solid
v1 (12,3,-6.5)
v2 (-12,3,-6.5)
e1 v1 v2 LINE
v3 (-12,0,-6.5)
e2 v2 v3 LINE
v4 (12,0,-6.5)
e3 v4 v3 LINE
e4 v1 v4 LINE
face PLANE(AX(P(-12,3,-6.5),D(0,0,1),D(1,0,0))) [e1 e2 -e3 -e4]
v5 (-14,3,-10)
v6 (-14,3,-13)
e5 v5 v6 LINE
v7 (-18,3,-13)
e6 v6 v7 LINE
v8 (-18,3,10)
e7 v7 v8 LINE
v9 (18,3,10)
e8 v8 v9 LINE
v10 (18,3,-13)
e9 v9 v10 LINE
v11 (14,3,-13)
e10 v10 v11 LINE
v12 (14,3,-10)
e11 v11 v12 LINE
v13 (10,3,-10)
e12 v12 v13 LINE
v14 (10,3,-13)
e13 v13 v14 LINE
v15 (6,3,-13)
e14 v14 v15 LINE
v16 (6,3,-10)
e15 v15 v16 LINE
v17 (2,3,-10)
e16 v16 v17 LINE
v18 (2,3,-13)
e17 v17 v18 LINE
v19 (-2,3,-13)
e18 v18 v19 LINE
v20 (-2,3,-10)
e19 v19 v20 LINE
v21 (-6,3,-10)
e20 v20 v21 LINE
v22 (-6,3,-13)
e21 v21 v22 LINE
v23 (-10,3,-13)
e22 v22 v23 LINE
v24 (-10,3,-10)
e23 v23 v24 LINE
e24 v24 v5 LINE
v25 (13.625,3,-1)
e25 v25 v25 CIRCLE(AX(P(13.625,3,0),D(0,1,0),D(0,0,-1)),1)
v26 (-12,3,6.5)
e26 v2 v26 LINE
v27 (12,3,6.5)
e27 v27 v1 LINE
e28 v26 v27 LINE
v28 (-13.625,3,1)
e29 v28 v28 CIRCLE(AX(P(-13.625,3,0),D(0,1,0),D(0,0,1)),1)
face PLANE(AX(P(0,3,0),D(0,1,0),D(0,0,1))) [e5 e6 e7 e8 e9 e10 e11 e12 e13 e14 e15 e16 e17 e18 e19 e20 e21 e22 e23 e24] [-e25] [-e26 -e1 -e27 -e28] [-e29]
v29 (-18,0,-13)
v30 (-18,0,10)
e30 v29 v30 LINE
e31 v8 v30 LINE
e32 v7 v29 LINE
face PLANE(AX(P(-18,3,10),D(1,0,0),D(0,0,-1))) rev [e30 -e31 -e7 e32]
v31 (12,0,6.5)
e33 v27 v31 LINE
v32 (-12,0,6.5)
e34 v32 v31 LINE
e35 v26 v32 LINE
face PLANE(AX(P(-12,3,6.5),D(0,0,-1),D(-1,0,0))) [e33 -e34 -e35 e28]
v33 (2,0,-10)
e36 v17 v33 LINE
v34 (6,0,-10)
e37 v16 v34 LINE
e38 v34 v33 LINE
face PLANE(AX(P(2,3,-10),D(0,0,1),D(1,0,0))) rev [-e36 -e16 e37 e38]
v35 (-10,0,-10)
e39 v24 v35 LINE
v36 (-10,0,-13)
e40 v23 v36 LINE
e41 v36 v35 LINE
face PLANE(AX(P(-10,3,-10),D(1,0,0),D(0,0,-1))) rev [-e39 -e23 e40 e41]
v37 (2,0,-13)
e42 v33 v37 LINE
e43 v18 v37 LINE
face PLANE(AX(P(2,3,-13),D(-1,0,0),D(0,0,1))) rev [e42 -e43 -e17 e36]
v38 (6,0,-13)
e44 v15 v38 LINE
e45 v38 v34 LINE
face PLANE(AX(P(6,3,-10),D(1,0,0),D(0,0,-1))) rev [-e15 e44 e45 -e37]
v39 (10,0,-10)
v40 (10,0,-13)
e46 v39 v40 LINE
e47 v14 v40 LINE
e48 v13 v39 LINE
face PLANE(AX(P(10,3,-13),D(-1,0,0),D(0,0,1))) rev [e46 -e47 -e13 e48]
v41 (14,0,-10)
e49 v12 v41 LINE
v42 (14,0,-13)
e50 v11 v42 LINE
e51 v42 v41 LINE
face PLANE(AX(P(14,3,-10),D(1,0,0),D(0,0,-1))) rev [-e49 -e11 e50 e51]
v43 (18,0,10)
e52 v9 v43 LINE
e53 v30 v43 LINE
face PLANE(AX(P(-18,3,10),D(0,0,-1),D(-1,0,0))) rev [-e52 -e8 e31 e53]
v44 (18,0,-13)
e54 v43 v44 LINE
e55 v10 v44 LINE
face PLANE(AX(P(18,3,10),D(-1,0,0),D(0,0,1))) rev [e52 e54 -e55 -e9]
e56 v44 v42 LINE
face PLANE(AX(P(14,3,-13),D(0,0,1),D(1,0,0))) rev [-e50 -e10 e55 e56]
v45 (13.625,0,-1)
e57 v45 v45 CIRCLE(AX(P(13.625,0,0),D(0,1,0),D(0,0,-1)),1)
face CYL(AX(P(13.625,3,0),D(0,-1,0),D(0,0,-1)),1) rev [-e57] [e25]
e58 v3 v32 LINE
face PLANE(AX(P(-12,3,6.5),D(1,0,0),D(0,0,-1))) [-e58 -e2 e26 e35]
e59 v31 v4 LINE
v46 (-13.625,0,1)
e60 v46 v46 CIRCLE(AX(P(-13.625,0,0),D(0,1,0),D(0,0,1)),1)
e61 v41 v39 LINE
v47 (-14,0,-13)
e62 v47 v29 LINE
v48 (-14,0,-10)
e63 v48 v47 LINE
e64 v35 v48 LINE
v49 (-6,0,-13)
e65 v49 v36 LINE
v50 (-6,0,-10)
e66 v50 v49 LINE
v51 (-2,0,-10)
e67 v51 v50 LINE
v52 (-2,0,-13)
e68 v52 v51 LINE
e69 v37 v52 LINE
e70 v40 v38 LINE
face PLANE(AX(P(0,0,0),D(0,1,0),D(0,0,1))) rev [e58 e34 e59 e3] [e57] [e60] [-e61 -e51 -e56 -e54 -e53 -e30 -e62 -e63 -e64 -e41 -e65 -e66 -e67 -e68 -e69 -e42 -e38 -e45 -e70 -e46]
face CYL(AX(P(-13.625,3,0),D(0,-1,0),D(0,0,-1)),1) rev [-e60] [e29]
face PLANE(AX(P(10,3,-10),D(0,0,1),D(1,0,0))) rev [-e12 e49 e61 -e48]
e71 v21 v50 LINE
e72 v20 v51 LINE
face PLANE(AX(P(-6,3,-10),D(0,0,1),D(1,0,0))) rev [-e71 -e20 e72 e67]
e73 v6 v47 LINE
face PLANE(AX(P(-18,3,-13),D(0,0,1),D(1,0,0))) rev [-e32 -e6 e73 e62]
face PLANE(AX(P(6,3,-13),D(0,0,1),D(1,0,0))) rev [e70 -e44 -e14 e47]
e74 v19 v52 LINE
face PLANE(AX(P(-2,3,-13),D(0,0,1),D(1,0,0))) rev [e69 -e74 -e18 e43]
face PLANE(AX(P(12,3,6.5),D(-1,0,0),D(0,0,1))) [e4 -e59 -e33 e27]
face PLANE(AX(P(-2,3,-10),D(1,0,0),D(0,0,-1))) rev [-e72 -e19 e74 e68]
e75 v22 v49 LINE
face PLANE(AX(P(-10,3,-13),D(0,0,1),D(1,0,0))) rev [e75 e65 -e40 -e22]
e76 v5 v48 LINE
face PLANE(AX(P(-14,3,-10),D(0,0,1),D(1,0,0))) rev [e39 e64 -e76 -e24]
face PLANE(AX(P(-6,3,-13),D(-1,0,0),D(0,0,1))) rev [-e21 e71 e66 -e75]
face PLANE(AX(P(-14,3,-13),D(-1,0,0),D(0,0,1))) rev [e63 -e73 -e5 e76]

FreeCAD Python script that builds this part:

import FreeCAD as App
import Part
import Sketcher
Q = App.Units.Quantity


def add_polygon(sketch, points):
    """Adds a closed chain of lines whose ends are joined by coincident constraints."""
    first, n = sketch.GeometryCount, len(points)
    for a, b in zip(points, points[1:] + points[:1]):
        sketch.addGeometry(Part.LineSegment(App.Vector(*a, 0), App.Vector(*b, 0)), False)
    for i in range(n):
        sketch.addConstraint(Sketcher.Constraint("Coincident", first + i, 2, first + (i + 1) % n, 1))

doc = App.newDocument("Part")
body = doc.addObject("PartDesign::Body", "Body")

sketch1 = body.newObject("Sketcher::SketchObject", "Sketch")
sketch1.AttachmentSupport = (doc.getObject("XZ_Plane"), [""])
sketch1.MapMode = "FlatFace"
add_polygon(sketch1, [(-18, 10), (18, 10), (18, -13), (14, -13), (14, -10), (10, -10), (10, -13), (6, -13), (6, -10), (2, -10), (2, -13), (-2, -13), (-2, -10), (-6, -10), (-6, -13), (-10, -13), (-10, -10), (-14, -10), (-14, -13), (-18, -13)])
sketch1.addGeometry(Part.Circle(App.Vector(-13.625, 0, 0), App.Vector(0, 0, 1), 1), False)
add_polygon(sketch1, [(12, 6.5), (-12, 6.5), (-12, -6.5), (12, -6.5)])
sketch1.addGeometry(Part.Circle(App.Vector(13.625, 0, 0), App.Vector(0, 0, 1), 1), False)
sketch1.addConstraint([
    Sketcher.Constraint("Horizontal", 0),
    Sketcher.Constraint("Vertical", 1),
    Sketcher.Constraint("Horizontal", 2),
    Sketcher.Constraint("Vertical", 3),
    Sketcher.Constraint("Horizontal", 4),
    Sketcher.Constraint("Vertical", 5),
    Sketcher.Constraint("Horizontal", 6),
    Sketcher.Constraint("Vertical", 7),
    Sketcher.Constraint("Horizontal", 8),
    Sketcher.Constraint("Vertical", 9),
    Sketcher.Constraint("Horizontal", 10),
    Sketcher.Constraint("Vertical", 11),
    Sketcher.Constraint("Horizontal", 12),
    Sketcher.Constraint("Vertical", 13),
    Sketcher.Constraint("Horizontal", 14),
    Sketcher.Constraint("Vertical", 15),
    Sketcher.Constraint("Horizontal", 16),
    Sketcher.Constraint("Vertical", 17),
    Sketcher.Constraint("Horizontal", 18),
    Sketcher.Constraint("Vertical", 19),
    Sketcher.Constraint("Horizontal", 21),
    Sketcher.Constraint("Vertical", 22),
    Sketcher.Constraint("Horizontal", 23),
    Sketcher.Constraint("Vertical", 24),
    Sketcher.Constraint("Equal", 20, 25),
    Sketcher.Constraint("Symmetric", 20, 3, 25, 3, -1, 1),
    Sketcher.Constraint("Symmetric", 21, 2, 23, 2, -1, 1),
    Sketcher.Constraint("Symmetric", 8, 2, 11, 2, -2),
    Sketcher.Constraint("Symmetric", 6, 2, 13, 2, -2),
    Sketcher.Constraint("Symmetric", 4, 2, 15, 2, -2),
    Sketcher.Constraint("Symmetric", 2, 2, 17, 2, -2),
    Sketcher.Constraint("PointOnObject", 20, 3, -1),
    Sketcher.Constraint("Horizontal", 2, 2, 5, 2),
    Sketcher.Constraint("Horizontal", 4, 2, 7, 2),
    Sketcher.Constraint("Horizontal", 6, 2, 9, 2),
    Sketcher.Constraint("Equal", 2, 4),
    Sketcher.Constraint("Equal", 4, 6),
    Sketcher.Constraint("Equal", 6, 8),
    Sketcher.Constraint("Equal", 8, 10),
    Sketcher.Constraint("Equal", 16, 18),
    Sketcher.Constraint("Diameter", 20, Q("2 mm")),
    Sketcher.Constraint("DistanceX", 0, 1, 0, 2, Q("36 mm")),
    Sketcher.Constraint("DistanceX", 21, 2, 21, 1, Q("24 mm")),
    Sketcher.Constraint("DistanceY", 1, 2, 1, 1, Q("23 mm")),
    Sketcher.Constraint("DistanceY", 3, 1, 3, 2, Q("3 mm")),
    Sketcher.Constraint("DistanceY", 22, 2, 22, 1, Q("13 mm")),
    Sketcher.Constraint("DistanceY", -1, 1, 0, 2, Q("10 mm")),
    Sketcher.Constraint("DistanceX", 20, 3, 25, 3, Q("27.25 mm")),
])
pad1 = body.newObject("PartDesign::Pad", "Pad")
pad1.Profile = sketch1
pad1.Length = 3
pad1.Reversed = True

doc.recompute()
